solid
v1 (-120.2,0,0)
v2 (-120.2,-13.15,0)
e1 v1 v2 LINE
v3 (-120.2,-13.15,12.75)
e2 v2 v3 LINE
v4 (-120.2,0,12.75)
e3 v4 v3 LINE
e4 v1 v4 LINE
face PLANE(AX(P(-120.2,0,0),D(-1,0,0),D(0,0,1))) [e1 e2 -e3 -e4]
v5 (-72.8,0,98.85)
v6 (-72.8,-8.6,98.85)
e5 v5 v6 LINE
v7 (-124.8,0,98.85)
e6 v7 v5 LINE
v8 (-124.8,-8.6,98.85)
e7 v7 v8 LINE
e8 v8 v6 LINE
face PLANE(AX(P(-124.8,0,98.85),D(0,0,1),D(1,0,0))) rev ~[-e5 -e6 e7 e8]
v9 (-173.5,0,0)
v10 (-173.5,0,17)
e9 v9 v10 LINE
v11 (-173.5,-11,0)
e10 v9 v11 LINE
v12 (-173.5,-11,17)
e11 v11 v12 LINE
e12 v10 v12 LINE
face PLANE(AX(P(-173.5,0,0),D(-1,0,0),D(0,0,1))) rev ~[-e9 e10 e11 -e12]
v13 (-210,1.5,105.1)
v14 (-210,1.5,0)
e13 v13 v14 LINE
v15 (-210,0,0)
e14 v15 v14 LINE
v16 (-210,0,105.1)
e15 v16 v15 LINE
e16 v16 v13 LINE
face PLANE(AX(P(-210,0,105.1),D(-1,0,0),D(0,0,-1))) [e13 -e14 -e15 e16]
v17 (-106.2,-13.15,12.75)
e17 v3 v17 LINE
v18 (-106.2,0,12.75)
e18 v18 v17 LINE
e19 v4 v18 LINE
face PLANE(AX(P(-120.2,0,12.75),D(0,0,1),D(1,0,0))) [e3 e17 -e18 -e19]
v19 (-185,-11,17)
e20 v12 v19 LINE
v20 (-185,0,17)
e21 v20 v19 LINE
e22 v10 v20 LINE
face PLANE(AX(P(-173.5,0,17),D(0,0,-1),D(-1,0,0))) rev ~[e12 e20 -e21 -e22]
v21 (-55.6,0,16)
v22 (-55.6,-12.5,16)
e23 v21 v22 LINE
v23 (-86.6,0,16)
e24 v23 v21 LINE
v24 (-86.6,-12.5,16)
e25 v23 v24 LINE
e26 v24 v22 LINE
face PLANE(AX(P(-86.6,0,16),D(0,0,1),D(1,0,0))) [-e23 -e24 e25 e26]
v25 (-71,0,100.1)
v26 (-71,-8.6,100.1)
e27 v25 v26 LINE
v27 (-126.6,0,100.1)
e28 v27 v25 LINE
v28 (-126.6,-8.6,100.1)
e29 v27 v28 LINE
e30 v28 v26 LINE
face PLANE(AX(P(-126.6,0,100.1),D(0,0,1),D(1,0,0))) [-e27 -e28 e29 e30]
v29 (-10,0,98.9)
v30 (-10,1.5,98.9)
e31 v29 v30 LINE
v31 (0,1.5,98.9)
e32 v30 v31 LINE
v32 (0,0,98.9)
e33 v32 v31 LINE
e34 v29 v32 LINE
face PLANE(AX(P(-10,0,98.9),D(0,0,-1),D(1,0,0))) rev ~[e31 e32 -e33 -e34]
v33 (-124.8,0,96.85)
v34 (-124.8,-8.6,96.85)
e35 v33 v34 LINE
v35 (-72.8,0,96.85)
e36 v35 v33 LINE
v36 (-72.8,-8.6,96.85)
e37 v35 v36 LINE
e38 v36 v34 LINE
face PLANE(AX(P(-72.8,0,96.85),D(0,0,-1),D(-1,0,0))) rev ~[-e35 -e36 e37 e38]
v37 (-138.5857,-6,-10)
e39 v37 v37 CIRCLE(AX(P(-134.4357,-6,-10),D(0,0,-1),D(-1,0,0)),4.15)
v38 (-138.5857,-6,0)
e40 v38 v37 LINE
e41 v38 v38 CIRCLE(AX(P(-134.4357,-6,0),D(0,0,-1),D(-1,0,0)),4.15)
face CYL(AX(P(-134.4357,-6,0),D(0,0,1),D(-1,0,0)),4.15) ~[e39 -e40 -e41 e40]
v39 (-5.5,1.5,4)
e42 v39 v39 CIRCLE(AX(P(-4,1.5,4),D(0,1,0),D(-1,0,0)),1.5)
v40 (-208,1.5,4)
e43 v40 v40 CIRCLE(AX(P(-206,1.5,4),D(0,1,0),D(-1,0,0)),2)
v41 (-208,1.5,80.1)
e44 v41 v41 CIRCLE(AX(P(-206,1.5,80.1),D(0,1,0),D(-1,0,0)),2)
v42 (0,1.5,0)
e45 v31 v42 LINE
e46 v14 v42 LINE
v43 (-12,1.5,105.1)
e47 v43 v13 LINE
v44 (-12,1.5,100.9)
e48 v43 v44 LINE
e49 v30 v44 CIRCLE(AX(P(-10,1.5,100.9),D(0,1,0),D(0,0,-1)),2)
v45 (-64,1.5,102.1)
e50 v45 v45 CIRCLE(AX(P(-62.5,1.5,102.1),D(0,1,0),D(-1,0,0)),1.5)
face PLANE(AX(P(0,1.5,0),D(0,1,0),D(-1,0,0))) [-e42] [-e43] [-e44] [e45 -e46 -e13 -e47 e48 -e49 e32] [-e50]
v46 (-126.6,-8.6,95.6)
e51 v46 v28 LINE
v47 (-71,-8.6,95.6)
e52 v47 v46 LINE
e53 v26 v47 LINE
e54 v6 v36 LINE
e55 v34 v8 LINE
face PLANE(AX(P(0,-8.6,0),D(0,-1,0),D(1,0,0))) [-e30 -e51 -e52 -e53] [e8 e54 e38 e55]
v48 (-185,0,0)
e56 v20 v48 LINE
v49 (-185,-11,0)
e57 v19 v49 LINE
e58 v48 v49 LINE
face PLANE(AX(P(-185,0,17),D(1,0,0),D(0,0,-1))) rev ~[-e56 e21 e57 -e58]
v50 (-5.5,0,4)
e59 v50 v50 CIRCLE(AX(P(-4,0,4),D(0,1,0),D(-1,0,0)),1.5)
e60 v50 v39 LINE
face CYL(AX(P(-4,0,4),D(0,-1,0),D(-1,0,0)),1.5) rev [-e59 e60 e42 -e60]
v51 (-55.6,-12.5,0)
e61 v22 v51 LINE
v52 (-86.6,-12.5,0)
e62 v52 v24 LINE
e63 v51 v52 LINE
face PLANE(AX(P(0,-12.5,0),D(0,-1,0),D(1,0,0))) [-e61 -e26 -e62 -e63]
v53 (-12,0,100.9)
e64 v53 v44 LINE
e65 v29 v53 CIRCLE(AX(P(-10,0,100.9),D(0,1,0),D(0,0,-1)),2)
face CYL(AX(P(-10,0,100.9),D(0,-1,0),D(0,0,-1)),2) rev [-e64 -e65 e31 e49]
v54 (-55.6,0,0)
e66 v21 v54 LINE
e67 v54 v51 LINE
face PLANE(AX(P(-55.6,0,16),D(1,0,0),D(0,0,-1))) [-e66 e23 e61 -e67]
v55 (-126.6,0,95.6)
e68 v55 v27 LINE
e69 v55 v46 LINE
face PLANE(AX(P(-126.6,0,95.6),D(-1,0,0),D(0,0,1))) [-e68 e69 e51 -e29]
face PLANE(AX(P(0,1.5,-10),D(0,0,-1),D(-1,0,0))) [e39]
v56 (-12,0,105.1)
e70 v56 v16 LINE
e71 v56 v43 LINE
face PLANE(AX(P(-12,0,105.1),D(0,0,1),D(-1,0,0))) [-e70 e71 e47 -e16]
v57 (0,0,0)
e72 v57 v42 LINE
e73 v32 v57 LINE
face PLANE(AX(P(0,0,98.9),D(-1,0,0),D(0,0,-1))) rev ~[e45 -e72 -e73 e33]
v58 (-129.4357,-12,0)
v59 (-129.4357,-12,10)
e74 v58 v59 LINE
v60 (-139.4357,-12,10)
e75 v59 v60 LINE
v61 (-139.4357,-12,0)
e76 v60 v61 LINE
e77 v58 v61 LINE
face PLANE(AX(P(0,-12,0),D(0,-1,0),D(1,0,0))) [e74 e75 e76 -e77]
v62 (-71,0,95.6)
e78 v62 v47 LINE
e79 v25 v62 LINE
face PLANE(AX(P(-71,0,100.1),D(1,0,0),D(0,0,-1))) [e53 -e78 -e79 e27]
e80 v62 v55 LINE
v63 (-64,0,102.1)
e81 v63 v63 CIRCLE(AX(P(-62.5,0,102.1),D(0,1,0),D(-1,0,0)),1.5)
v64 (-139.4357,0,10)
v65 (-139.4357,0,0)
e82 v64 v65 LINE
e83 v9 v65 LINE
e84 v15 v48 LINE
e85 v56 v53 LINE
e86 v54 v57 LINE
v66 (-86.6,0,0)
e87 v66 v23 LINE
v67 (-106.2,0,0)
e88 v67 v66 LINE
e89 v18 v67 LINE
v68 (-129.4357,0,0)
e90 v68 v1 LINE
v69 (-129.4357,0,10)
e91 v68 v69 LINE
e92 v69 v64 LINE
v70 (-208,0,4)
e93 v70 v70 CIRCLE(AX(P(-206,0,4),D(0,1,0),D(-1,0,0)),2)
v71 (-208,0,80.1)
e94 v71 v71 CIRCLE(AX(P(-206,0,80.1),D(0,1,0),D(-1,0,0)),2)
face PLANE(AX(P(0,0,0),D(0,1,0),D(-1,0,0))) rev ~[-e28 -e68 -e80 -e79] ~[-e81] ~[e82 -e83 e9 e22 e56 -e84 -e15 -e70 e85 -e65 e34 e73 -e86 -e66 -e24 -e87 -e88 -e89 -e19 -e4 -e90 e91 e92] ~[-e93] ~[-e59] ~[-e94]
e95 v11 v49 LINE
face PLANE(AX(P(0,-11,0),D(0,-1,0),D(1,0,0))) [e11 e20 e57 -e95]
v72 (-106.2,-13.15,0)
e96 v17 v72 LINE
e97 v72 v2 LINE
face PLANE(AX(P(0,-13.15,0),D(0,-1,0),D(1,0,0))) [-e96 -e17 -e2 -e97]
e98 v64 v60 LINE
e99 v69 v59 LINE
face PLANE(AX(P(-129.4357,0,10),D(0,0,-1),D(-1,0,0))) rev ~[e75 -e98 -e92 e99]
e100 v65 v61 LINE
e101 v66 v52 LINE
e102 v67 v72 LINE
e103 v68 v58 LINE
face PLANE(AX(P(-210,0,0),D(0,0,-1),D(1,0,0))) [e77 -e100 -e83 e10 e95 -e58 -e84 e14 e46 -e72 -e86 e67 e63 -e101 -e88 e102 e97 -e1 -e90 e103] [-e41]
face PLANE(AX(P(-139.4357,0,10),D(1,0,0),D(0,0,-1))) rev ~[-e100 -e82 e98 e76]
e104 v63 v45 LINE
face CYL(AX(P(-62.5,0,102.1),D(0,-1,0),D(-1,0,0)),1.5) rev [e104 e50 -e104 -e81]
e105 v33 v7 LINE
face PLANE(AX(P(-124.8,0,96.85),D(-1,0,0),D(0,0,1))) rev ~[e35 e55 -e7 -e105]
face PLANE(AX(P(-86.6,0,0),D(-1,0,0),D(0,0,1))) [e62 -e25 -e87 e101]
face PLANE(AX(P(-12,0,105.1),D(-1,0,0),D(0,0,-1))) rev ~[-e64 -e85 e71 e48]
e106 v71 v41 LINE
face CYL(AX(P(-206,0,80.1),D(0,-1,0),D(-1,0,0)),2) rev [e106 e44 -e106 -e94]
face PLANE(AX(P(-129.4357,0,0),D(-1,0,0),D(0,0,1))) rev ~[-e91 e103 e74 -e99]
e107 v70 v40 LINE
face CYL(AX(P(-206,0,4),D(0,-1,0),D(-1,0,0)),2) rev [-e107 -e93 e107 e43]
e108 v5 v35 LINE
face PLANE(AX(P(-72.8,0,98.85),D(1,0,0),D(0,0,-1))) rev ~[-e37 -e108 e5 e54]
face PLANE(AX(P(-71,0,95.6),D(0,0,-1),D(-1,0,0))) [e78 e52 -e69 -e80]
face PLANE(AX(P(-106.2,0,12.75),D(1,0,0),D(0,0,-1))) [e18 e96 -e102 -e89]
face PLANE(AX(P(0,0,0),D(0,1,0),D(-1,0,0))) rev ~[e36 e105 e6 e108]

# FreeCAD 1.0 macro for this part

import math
import FreeCAD as App
import Part
import Sketcher


def add_polygon(sketch, points):
    """Adds a closed chain of lines whose ends are joined by coincident constraints."""
    first, n = sketch.GeometryCount, len(points)
    for a, b in zip(points, points[1:] + points[:1]):
        sketch.addGeometry(Part.LineSegment(App.Vector(*a, 0), App.Vector(*b, 0)), False)
    for i in range(n):
        sketch.addConstraint(Sketcher.Constraint("Coincident", first + i, 2, first + (i + 1) % n, 1))

doc = App.newDocument("Part")
body = doc.addObject("PartDesign::Body", "Body")

sketch1 = body.newObject("Sketcher::SketchObject", "Sketch")
sketch1.AttachmentSupport = (doc.getObject("XZ_Plane"), [""])
sketch1.MapMode = "FlatFace"
sketch1.addGeometry([
    Part.LineSegment(App.Vector(-210, 105.1, 0), App.Vector(-12, 105.1, 0)),
    Part.LineSegment(App.Vector(-12, 105.1, 0), App.Vector(-12, 100.9, 0)),
    Part.ArcOfCircle(Part.Circle(App.Vector(-10, 100.9, 0), App.Vector(0, 0, 1), 2), math.radians(180), math.radians(270)),
    Part.LineSegment(App.Vector(-10, 98.9, 0), App.Vector(0, 98.9, 0)),
    Part.LineSegment(App.Vector(0, 98.9, 0), App.Vector(0, 0, 0)),
    Part.LineSegment(App.Vector(0, 0, 0), App.Vector(-210, 0, 0)),
    Part.LineSegment(App.Vector(-210, 0, 0), App.Vector(-210, 105.1, 0)),
    Part.Circle(App.Vector(-4, 4, 0), App.Vector(0, 0, 1), 1.5),
    Part.Circle(App.Vector(-206, 4, 0), App.Vector(0, 0, 1), 2),
    Part.Circle(App.Vector(-62.5, 102.1, 0), App.Vector(0, 0, 1), 1.5),
    Part.Circle(App.Vector(-206, 80.1, 0), App.Vector(0, 0, 1), 2),
], False)
sketch1.addConstraint([
    Sketcher.Constraint("Coincident", 0, 2, 1, 1),
    Sketcher.Constraint("Tangent", 1, 2, 2, 1),
    Sketcher.Constraint("Tangent", 2, 2, 3, 1),
    Sketcher.Constraint("Coincident", 3, 2, 4, 1),
    Sketcher.Constraint("Coincident", 4, 2, 5, 1),
    Sketcher.Constraint("Coincident", 5, 2, 6, 1),
    Sketcher.Constraint("Coincident", 6, 2, 0, 1),
    Sketcher.Constraint("Horizontal", 0),
    Sketcher.Constraint("Vertical", 1),
    Sketcher.Constraint("Horizontal", 3),
    Sketcher.Constraint("Vertical", 4),
    Sketcher.Constraint("Horizontal", 5),
    Sketcher.Constraint("Vertical", 6),
    Sketcher.Constraint("Coincident", 4, 2, -1, 1),
    Sketcher.Constraint("Equal", 2, 8),
    Sketcher.Constraint("Equal", 7, 9),
    Sketcher.Constraint("Equal", 8, 10),
    Sketcher.Constraint("Horizontal", 7, 3, 8, 3),
    Sketcher.Constraint("Vertical", 8, 3, 10, 3),
    Sketcher.Constraint("Diameter", 7, 3.0),
    Sketcher.Constraint("Diameter", 8, 4.0),
    Sketcher.Constraint("DistanceX", 5, 2, 5, 1, 210.0),
    Sketcher.Constraint("DistanceY", 6, 1, 6, 2, 105.1),
    Sketcher.Constraint("DistanceX", 7, 3, -1, 1, 4.0),
    Sketcher.Constraint("DistanceY", -1, 1, 7, 3, 4.0),
    Sketcher.Constraint("DistanceX", 8, 3, -1, 1, 206.0),
    Sketcher.Constraint("DistanceX", 0, 2, -1, 1, 12.0),
    Sketcher.Constraint("DistanceY", 9, 3, 0, 2, 3.0),
    Sketcher.Constraint("DistanceX", 9, 3, -1, 1, 62.5),
    Sketcher.Constraint("DistanceY", -1, 1, 10, 3, 80.1),
    Sketcher.Constraint("DistanceY", 2, 2, 0, 2, 6.2),
])
pad1 = body.newObject("PartDesign::Pad", "Pad")
pad1.Profile = sketch1
pad1.Length = 1.5
pad1.Reversed = True

sketch2 = body.newObject("Sketcher::SketchObject", "Sketch001")
sketch2.AttachmentSupport = (doc.getObject("XZ_Plane"), [""])
sketch2.MapMode = "FlatFace"
add_polygon(sketch2, [(-86.6, 0), (-55.6, 0), (-55.6, 16), (-86.6, 16)])
sketch2.addConstraint([
    Sketcher.Constraint("Horizontal", 0),
    Sketcher.Constraint("Vertical", 1),
    Sketcher.Constraint("Horizontal", 2),
    Sketcher.Constraint("Vertical", 3),
    Sketcher.Constraint("PointOnObject", 0, 2, -1),
    Sketcher.Constraint("DistanceX", 0, 1, 0, 2, 31.0),
    Sketcher.Constraint("DistanceY", 1, 1, 1, 2, 16.0),
    Sketcher.Constraint("DistanceX", 0, 2, -1, 1, 55.6),
])
pad2 = body.newObject("PartDesign::Pad", "Pad001")
pad2.Profile = sketch2
pad2.Length = 12.5

sketch3 = body.newObject("Sketcher::SketchObject", "Sketch002")
sketch3.AttachmentSupport = (doc.getObject("XZ_Plane"), [""])
sketch3.MapMode = "FlatFace"
add_polygon(sketch3, [(-120.2, 0), (-106.2, 0), (-106.2, 12.75), (-120.2, 12.75)])
sketch3.addConstraint([
    Sketcher.Constraint("Horizontal", 0),
    Sketcher.Constraint("Vertical", 1),
    Sketcher.Constraint("Horizontal", 2),
    Sketcher.Constraint("Vertical", 3),
    Sketcher.Constraint("PointOnObject", 0, 2, -1),
    Sketcher.Constraint("DistanceX", 0, 1, 0, 2, 14.0),
    Sketcher.Constraint("DistanceY", 1, 1, 1, 2, 12.75),
    Sketcher.Constraint("DistanceX", 0, 2, -1, 1, 106.2),
])
pad3 = body.newObject("PartDesign::Pad", "Pad002")
pad3.Profile = sketch3
pad3.Length = 13.15

sketch4 = body.newObject("Sketcher::SketchObject", "Sketch003")
sketch4.AttachmentSupport = (doc.getObject("XZ_Plane"), [""])
sketch4.MapMode = "FlatFace"
add_polygon(sketch4, [(-71, 100.1), (-126.6, 100.1), (-126.6, 95.6), (-71, 95.6)])
add_polygon(sketch4, [(-72.8, 98.85), (-72.8, 96.85), (-124.8, 96.85), (-124.8, 98.85)])
sketch4.addConstraint([
    Sketcher.Constraint("Horizontal", 0),
    Sketcher.Constraint("Vertical", 1),
    Sketcher.Constraint("Horizontal", 2),
    Sketcher.Constraint("Vertical", 3),
    Sketcher.Constraint("Vertical", 4),
    Sketcher.Constraint("Horizontal", 5),
    Sketcher.Constraint("Vertical", 6),
    Sketcher.Constraint("Horizontal", 7),
    Sketcher.Constraint("DistanceY", 4, 2, 4, 1, 2.0),
    Sketcher.Constraint("DistanceX", 0, 2, 0, 1, 55.6),
    Sketcher.Constraint("DistanceY", 1, 2, 1, 1, 4.5),
    Sketcher.Constraint("DistanceX", 2, 2, -1, 1, 71.0),
    Sketcher.Constraint("DistanceX", 4, 2, 2, 2, 1.8),
    Sketcher.Constraint("DistanceX", 1, 2, 5, 2, 1.8),
    Sketcher.Constraint("DistanceY", -1, 1, 0, 2, 100.1),
    Sketcher.Constraint("DistanceY", -1, 1, 4, 2, 96.85),
])
pad4 = body.newObject("PartDesign::Pad", "Pad003")
pad4.Profile = sketch4
pad4.Length = 8.6

sketch5 = body.newObject("Sketcher::SketchObject", "Sketch004")
sketch5.AttachmentSupport = (doc.getObject("XZ_Plane"), [""])
sketch5.MapMode = "FlatFace"
add_polygon(sketch5, [(-185, 0), (-173.5, 0), (-173.5, 17), (-185, 17)])
sketch5.addConstraint([
    Sketcher.Constraint("Horizontal", 0),
    Sketcher.Constraint("Vertical", 1),
    Sketcher.Constraint("Horizontal", 2),
    Sketcher.Constraint("Vertical", 3),
    Sketcher.Constraint("PointOnObject", 0, 2, -1),
    Sketcher.Constraint("DistanceY", 1, 1, 1, 2, 17.0),
    Sketcher.Constraint("DistanceX", 0, 1, 0, 2, 11.5),
    Sketcher.Constraint("DistanceX", 2, 2, -1, 1, 185.0),
])
pad5 = body.newObject("PartDesign::Pad", "Pad004")
pad5.Profile = sketch5
pad5.Length = 11

sketch6 = body.newObject("Sketcher::SketchObject", "Sketch005")
sketch6.AttachmentSupport = (doc.getObject("XZ_Plane"), [""])
sketch6.MapMode = "FlatFace"
add_polygon(sketch6, [(-139.4357, 0), (-129.4357, 0), (-129.4357, 10), (-139.4357, 10)])
sketch6.addConstraint([
    Sketcher.Constraint("Horizontal", 0),
    Sketcher.Constraint("Vertical", 1),
    Sketcher.Constraint("Horizontal", 2),
    Sketcher.Constraint("Vertical", 3),
    Sketcher.Constraint("PointOnObject", 0, 2, -1),
    Sketcher.Constraint("Equal", 2, 1),
    Sketcher.Constraint("DistanceX", 0, 1, 0, 2, 10.0),
    Sketcher.Constraint("DistanceX", 0, 2, -1, 1, 129.4357),
])
pad6 = body.newObject("PartDesign::Pad", "Pad005")
pad6.Profile = sketch6
pad6.Length = 12

sketch7 = body.newObject("Sketcher::SketchObject", "Sketch006")
sketch7.AttachmentSupport = (doc.getObject("XY_Plane"), [""])
sketch7.MapMode = "FlatFace"
sketch7.addGeometry(Part.Circle(App.Vector(-134.4357, -6, 0), App.Vector(0, 0, 1), 4.15), False)
sketch7.addConstraint([
    Sketcher.Constraint("Diameter", 0, 8.3),
    Sketcher.Constraint("DistanceY", 0, 3, -1, 1, 6.0),
    Sketcher.Constraint("DistanceX", 0, 3, -1, 1, 134.4357),
])
pad7 = body.newObject("PartDesign::Pad", "Pad006")
pad7.Profile = sketch7
pad7.Length = 10
pad7.Reversed = True

doc.recompute()
